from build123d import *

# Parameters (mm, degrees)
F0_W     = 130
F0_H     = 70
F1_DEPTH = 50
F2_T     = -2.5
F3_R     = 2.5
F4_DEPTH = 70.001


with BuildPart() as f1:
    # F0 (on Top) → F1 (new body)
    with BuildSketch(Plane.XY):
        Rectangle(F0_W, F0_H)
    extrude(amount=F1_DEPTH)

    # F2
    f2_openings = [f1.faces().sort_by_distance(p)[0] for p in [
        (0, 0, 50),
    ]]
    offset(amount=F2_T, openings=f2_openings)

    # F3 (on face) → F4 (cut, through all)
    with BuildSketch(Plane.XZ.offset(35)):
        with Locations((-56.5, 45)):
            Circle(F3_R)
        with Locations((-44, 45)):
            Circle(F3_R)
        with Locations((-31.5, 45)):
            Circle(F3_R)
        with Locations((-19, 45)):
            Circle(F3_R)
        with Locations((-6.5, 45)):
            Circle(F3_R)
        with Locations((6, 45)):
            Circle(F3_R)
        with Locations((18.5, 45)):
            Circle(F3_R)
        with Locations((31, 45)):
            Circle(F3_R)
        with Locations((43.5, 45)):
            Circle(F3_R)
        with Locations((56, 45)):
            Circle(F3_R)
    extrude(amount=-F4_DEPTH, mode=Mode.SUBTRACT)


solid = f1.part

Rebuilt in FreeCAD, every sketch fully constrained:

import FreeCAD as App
import Part
import Sketcher
from FreeCAD import Vector
Q = App.Units.Quantity


def faces_at(feature, points):
    """Names of the faces that lie closest to the given points."""
    faces = feature.Shape.Faces
    near = lambda p: min(range(len(faces)), key=lambda i: faces[i].distToShape(Part.Vertex(*p))[0])
    return sorted({f"Face{near(p) + 1}" for p in points})

doc = App.newDocument("Part")
body = doc.addObject("PartDesign::Body", "Body")

sketch1 = doc.addObject("Sketcher::SketchObject", "Sketch")
body.addObject(sketch1)
sketch1.AttachmentSupport = (doc.XY_Plane, [""])
sketch1.MapMode = "FlatFace"
sketch1.addGeometry(Part.LineSegment(Vector(-65, 35, 0), Vector(-65, -35, 0)), False)
sketch1.addGeometry(Part.LineSegment(Vector(-65, -35, 0), Vector(65, -35, 0)), False)
sketch1.addGeometry(Part.LineSegment(Vector(65, -35, 0), Vector(65, 35, 0)), False)
sketch1.addGeometry(Part.LineSegment(Vector(65, 35, 0), Vector(-65, 35, 0)), False)
sketch1.addConstraint(Sketcher.Constraint("Coincident", 0, 2, 1, 1))
sketch1.addConstraint(Sketcher.Constraint("Coincident", 1, 2, 2, 1))
sketch1.addConstraint(Sketcher.Constraint("Coincident", 2, 2, 3, 1))
sketch1.addConstraint(Sketcher.Constraint("Coincident", 3, 2, 0, 1))
sketch1.addConstraint(Sketcher.Constraint("Vertical", 0))
sketch1.addConstraint(Sketcher.Constraint("Horizontal", 1))
sketch1.addConstraint(Sketcher.Constraint("Vertical", 2))
sketch1.addConstraint(Sketcher.Constraint("Horizontal", 3))
sketch1.addConstraint(Sketcher.Constraint("Symmetric", 0, 2, 2, 2, -1, 1))
sketch1.addConstraint(Sketcher.Constraint("DistanceX", 1, 1, 1, 2, Q("130 mm")))
sketch1.addConstraint(Sketcher.Constraint("DistanceY", 0, 2, 0, 1, Q("70 mm")))
pad1 = doc.addObject("PartDesign::Pad", "Pad")
body.addObject(pad1)
pad1.Profile = sketch1
pad1.Length = 50
doc.recompute()

thickness = doc.addObject("PartDesign::Thickness", "Thickness")
body.addObject(thickness)
thickness.Base = (pad1, faces_at(pad1, [(0, 0, 50)]))
thickness.Value = 2.5
thickness.Reversed = True
thickness.Join = "Arc"

sketch2 = doc.addObject("Sketcher::SketchObject", "Sketch001")
body.addObject(sketch2)
sketch2.AttachmentSupport = (doc.XZ_Plane, [""])
sketch2.MapMode = "FlatFace"
sketch2.AttachmentOffset = App.Placement(Vector(0, 0, 35), App.Rotation())
sketch2.addGeometry(Part.Circle(Vector(-56.5, 45, 0), Vector(0, 0, 1), 2.5), False)
sketch2.addGeometry(Part.Circle(Vector(-44, 45, 0), Vector(0, 0, 1), 2.5), False)
sketch2.addGeometry(Part.Circle(Vector(-31.5, 45, 0), Vector(0, 0, 1), 2.5), False)
sketch2.addGeometry(Part.Circle(Vector(-19, 45, 0), Vector(0, 0, 1), 2.5), False)
sketch2.addGeometry(Part.Circle(Vector(-6.5, 45, 0), Vector(0, 0, 1), 2.5), False)
sketch2.addGeometry(Part.Circle(Vector(6, 45, 0), Vector(0, 0, 1), 2.5), False)
sketch2.addGeometry(Part.Circle(Vector(18.5, 45, 0), Vector(0, 0, 1), 2.5), False)
sketch2.addGeometry(Part.Circle(Vector(31, 45, 0), Vector(0, 0, 1), 2.5), False)
sketch2.addGeometry(Part.Circle(Vector(43.5, 45, 0), Vector(0, 0, 1), 2.5), False)
sketch2.addGeometry(Part.Circle(Vector(56, 45, 0), Vector(0, 0, 1), 2.5), False)
sketch2.addConstraint(Sketcher.Constraint("Equal", 0, 1))
sketch2.addConstraint(Sketcher.Constraint("Equal", 1, 2))
sketch2.addConstraint(Sketcher.Constraint("Equal", 2, 3))
sketch2.addConstraint(Sketcher.Constraint("Equal", 3, 4))
sketch2.addConstraint(Sketcher.Constraint("Equal", 4, 5))
sketch2.addConstraint(Sketcher.Constraint("Equal", 5, 6))
sketch2.addConstraint(Sketcher.Constraint("Equal", 6, 7))
sketch2.addConstraint(Sketcher.Constraint("Equal", 7, 8))
sketch2.addConstraint(Sketcher.Constraint("Equal", 8, 9))
sketch2.addConstraint(Sketcher.Constraint("Horizontal", 0, 3, 1, 3))
sketch2.addConstraint(Sketcher.Constraint("Horizontal", 1, 3, 2, 3))
sketch2.addConstraint(Sketcher.Constraint("Horizontal", 2, 3, 3, 3))
sketch2.addConstraint(Sketcher.Constraint("Horizontal", 3, 3, 4, 3))
sketch2.addConstraint(Sketcher.Constraint("Horizontal", 4, 3, 5, 3))
sketch2.addConstraint(Sketcher.Constraint("Horizontal", 5, 3, 6, 3))
sketch2.addConstraint(Sketcher.Constraint("Horizontal", 6, 3, 7, 3))
sketch2.addConstraint(Sketcher.Constraint("Horizontal", 7, 3, 8, 3))
sketch2.addConstraint(Sketcher.Constraint("Horizontal", 8, 3, 9, 3))
sketch2.addConstraint(Sketcher.Constraint("Diameter", 0, Q("5 mm")))
sketch2.addConstraint(Sketcher.Constraint("DistanceY", -1, 1, 0, 3, Q("45 mm")))
sketch2.addConstraint(Sketcher.Constraint("DistanceX", 1, 3, -1, 1, Q("44 mm")))
sketch2.addConstraint(Sketcher.Constraint("DistanceX", 3, 3, -1, 1, Q("19 mm")))
sketch2.addConstraint(Sketcher.Constraint("DistanceX", -1, 1, 5, 3, Q("6 mm")))
sketch2.addConstraint(Sketcher.Constraint("DistanceX", -1, 1, 7, 3, Q("31 mm")))
sketch2.addConstraint(Sketcher.Constraint("DistanceX", -1, 1, 9, 3, Q("56 mm")))
sketch2.addConstraint(Sketcher.Constraint("DistanceX", 0, 3, 2, 3, Q("25 mm")))
sketch2.addConstraint(Sketcher.Constraint("DistanceX", 2, 3, 4, 3, Q("25 mm")))
sketch2.addConstraint(Sketcher.Constraint("DistanceX", 4, 3, 6, 3, Q("25 mm")))
sketch2.addConstraint(Sketcher.Constraint("DistanceX", 6, 3, 8, 3, Q("25 mm")))
sketch2.addConstraint(Sketcher.Constraint("DistanceX", 0, 3, -1, 1, Q("56.5 mm")))
pocket1 = doc.addObject("PartDesign::Pocket", "Pocket")
body.addObject(pocket1)
pocket1.Profile = sketch2
pocket1.Type = "ThroughAll"

doc.recompute()
